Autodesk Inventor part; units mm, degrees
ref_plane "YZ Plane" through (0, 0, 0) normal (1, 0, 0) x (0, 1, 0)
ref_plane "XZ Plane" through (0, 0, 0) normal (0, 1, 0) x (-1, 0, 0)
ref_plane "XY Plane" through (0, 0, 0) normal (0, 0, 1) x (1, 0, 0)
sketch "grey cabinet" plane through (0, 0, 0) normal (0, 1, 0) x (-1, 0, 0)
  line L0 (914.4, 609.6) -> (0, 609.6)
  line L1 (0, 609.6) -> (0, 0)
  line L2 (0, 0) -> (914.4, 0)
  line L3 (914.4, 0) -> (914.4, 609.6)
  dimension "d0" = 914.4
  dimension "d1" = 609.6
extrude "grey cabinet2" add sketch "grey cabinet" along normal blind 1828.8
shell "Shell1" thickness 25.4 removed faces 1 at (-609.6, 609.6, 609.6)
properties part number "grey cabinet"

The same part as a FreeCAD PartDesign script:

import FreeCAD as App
import Part
import Sketcher
Q = App.Units.Quantity


def faces_at(feature, points):
    """Names of the faces that lie closest to the given points."""
    faces = feature.Shape.Faces
    near = lambda p: min(range(len(faces)), key=lambda i: faces[i].distToShape(Part.Vertex(*p))[0])
    return sorted({f"Face{near(p) + 1}" for p in points})

doc = App.newDocument("Part")
body = doc.addObject("PartDesign::Body", "Body")

sketch1 = body.newObject("Sketcher::SketchObject", "Sketch")
sketch1.AttachmentSupport = (doc.getObject("XZ_Plane"), [""])
sketch1.MapMode = "FlatFace"
sketch1.addGeometry(Part.LineSegment(App.Vector(-914, 0, 0), App.Vector(-914, 610, 0)), False)
sketch1.addGeometry(Part.LineSegment(App.Vector(-914, 610, 0), App.Vector(0, 610, 0)), False)
sketch1.addGeometry(Part.LineSegment(App.Vector(0, 610, 0), App.Vector(0, 0, 0)), False)
sketch1.addGeometry(Part.LineSegment(App.Vector(0, 0, 0), App.Vector(-914, 0, 0)), False)
sketch1.addConstraint(Sketcher.Constraint("Coincident", 0, 2, 1, 1))
sketch1.addConstraint(Sketcher.Constraint("Coincident", 1, 2, 2, 1))
sketch1.addConstraint(Sketcher.Constraint("Coincident", 2, 2, 3, 1))
sketch1.addConstraint(Sketcher.Constraint("Coincident", 3, 2, 0, 1))
sketch1.addConstraint(Sketcher.Constraint("Vertical", 0))
sketch1.addConstraint(Sketcher.Constraint("Horizontal", 1))
sketch1.addConstraint(Sketcher.Constraint("Vertical", 2))
sketch1.addConstraint(Sketcher.Constraint("Horizontal", 3))
sketch1.addConstraint(Sketcher.Constraint("Coincident", 2, 2, -1, 1))
sketch1.addConstraint(Sketcher.Constraint("DistanceX", 1, 1, 1, 2, Q("36 in")))
sketch1.addConstraint(Sketcher.Constraint("DistanceY", 0, 1, 0, 2, Q("24 in")))
pad1 = body.newObject("PartDesign::Pad", "Pad")
pad1.Profile = sketch1
pad1.Length = Q("72 in")
pad1.Reversed = True
doc.recompute()

thickness = body.newObject("PartDesign::Thickness", "Thickness")
thickness.Base = (pad1, faces_at(pad1, [(-609.6, 609.6, 609.6)]))
thickness.Value = Q("1 in")
thickness.Reversed = True
thickness.Join = "Intersection"

doc.recompute()
